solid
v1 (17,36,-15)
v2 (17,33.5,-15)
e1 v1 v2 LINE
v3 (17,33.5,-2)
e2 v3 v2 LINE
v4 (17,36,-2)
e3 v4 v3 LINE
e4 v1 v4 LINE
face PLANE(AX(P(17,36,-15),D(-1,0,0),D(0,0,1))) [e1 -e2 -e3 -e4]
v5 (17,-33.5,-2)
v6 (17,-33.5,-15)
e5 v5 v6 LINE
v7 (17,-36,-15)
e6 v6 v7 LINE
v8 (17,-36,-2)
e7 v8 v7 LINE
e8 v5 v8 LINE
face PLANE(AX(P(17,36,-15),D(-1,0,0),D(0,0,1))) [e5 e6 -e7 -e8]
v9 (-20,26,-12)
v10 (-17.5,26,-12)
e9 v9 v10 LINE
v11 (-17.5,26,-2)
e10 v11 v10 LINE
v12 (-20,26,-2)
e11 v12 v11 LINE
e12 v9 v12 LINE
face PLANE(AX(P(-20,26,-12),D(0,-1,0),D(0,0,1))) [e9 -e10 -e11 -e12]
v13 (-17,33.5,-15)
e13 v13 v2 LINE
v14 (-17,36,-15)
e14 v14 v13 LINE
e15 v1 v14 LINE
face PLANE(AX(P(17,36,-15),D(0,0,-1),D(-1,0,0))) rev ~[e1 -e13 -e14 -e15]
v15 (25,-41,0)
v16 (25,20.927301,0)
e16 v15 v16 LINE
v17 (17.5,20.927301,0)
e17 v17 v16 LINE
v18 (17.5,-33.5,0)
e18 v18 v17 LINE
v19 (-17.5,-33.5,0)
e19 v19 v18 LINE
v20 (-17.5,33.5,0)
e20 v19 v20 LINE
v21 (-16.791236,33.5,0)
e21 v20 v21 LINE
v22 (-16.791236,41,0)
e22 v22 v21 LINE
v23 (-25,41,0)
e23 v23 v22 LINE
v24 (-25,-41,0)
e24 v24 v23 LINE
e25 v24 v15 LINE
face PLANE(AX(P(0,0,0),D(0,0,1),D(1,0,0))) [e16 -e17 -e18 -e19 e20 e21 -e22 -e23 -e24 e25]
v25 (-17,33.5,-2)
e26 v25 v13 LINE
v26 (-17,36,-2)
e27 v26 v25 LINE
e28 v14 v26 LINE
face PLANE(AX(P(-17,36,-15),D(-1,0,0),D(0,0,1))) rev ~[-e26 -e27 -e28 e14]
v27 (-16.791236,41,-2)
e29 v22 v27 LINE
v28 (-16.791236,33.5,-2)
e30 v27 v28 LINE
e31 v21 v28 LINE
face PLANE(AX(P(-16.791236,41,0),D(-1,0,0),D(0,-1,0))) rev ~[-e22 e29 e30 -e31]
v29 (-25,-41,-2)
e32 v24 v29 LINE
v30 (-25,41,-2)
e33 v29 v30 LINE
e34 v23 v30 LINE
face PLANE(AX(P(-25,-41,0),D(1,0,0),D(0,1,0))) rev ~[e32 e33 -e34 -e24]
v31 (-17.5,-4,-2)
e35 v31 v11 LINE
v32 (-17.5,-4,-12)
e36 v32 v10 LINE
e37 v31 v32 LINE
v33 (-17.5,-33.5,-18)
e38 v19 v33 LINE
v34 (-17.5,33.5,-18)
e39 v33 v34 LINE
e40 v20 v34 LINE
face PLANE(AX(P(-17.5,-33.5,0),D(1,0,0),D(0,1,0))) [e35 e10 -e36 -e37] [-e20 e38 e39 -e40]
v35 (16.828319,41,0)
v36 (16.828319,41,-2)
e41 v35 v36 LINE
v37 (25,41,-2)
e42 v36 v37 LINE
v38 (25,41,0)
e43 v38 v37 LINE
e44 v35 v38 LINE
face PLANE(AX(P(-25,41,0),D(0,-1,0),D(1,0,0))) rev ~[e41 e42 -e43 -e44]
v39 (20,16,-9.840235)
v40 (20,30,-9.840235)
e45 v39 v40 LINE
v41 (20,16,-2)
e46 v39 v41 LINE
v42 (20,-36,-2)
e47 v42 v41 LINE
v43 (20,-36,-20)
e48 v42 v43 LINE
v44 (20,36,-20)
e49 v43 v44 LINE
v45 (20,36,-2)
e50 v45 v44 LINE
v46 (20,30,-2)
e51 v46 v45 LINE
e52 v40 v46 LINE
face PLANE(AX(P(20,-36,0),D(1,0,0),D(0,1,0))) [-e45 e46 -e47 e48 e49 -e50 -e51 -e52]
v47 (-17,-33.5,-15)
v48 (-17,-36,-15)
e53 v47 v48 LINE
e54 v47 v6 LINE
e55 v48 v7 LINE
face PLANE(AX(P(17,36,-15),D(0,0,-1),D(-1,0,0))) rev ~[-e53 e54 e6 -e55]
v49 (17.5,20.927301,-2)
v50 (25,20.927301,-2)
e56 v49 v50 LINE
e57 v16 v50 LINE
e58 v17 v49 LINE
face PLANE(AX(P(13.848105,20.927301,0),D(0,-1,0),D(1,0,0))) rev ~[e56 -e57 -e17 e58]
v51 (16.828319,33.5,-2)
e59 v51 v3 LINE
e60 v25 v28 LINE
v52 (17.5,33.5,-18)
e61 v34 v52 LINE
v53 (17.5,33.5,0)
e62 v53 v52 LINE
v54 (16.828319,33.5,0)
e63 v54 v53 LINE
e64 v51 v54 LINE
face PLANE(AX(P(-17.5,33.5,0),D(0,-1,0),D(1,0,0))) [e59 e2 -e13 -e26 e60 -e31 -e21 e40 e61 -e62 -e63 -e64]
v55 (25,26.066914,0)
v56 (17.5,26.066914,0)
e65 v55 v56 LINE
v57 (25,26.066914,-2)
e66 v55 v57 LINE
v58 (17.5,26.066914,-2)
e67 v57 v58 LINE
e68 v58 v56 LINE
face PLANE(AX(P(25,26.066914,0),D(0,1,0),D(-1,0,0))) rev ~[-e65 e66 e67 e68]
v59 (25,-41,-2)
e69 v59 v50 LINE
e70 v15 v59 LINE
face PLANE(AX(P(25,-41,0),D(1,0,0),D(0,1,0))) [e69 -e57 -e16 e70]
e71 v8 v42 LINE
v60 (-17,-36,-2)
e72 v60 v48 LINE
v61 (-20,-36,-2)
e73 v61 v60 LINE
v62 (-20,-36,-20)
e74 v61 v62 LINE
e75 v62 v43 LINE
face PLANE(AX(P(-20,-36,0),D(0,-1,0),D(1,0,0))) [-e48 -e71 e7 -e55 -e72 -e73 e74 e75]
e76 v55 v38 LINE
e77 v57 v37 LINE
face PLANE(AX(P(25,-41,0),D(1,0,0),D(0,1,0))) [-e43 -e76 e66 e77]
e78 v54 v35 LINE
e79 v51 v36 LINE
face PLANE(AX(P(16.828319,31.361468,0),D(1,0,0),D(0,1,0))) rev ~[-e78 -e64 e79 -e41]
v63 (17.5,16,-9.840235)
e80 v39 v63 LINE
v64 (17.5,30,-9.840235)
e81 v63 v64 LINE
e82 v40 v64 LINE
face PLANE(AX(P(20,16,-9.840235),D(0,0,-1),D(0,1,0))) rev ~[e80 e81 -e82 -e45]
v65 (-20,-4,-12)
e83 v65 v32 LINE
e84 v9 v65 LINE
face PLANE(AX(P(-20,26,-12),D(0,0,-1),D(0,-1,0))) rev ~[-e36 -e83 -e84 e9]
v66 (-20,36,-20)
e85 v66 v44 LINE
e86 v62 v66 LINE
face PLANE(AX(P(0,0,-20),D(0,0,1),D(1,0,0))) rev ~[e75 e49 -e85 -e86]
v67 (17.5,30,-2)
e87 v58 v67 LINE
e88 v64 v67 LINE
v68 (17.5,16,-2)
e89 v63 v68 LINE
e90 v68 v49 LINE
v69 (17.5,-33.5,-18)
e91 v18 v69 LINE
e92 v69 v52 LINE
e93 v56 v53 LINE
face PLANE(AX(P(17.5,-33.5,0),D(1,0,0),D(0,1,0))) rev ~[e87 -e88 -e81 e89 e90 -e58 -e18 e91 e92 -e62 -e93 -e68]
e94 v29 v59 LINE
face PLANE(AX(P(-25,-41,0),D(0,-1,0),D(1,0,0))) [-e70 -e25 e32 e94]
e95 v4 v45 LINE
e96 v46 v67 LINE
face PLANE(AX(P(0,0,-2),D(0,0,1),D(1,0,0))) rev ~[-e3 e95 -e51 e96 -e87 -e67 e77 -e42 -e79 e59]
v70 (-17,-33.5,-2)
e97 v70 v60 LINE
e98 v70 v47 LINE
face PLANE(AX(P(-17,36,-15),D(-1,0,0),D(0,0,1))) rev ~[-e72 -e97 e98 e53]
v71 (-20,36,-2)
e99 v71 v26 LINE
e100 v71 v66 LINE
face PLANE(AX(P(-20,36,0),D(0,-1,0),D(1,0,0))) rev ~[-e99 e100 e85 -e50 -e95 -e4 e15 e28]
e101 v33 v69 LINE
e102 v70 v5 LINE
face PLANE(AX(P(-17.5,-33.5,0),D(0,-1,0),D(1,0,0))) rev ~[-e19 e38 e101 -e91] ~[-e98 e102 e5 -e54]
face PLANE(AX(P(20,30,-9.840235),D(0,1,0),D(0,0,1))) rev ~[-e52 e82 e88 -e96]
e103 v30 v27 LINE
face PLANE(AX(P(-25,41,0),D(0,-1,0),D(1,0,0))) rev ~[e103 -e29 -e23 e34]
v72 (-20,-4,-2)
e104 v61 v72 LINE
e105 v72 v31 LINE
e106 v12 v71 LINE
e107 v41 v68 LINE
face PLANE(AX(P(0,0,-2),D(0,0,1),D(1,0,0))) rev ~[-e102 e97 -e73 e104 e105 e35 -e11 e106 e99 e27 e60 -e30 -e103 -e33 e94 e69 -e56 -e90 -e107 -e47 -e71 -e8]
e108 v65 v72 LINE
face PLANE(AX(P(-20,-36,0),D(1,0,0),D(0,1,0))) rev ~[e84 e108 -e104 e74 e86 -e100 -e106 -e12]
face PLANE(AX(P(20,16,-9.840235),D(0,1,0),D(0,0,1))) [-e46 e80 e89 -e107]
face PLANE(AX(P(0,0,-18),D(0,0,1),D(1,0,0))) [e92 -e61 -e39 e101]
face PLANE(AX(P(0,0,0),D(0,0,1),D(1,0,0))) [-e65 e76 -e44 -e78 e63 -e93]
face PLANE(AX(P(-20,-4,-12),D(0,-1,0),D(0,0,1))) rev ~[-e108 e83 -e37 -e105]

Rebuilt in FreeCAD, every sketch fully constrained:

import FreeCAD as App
import Part
import Sketcher

doc = App.newDocument("Part")
params = doc.addObject("Spreadsheet::Sheet", "Params")
for row, (alias, value) in enumerate([
    ("sketch1_width", "40 mm"),
    ("sketch1_height", "72 mm"),
    ("pad1_length", "20 mm"),
    ("sketch2_width", "50 mm"),
    ("sketch2_width2", "40 mm"),
    ("sketch2_height", "82 mm"),
    ("sketch2_height2", "72 mm"),
    ("pad2_length", "2 mm"),
    ("sketch3_width", "35 mm"),
    ("sketch3_height", "67 mm"),
    ("pocket1_length", "18 mm"),
    ("sketch4_width", "14 mm"),
    ("pocket2_length", "5 mm"),
    ("sketch5_width", "30 mm"),
    ("sketch5_height", "10 mm"),
    ("pocket3_length", "5 mm"),
    ("sketch6_width", "34 mm"),
    ("sketch6_height", "13 mm"),
    ("pocket4_length", "126.25 mm"),
    ("pocket5_length", "5 mm"),
], start=1):
    params.set(f"A{row}", alias)
    params.set(f"B{row}", "=" + value)
    params.setAlias(f"B{row}", alias)

body = doc.addObject("PartDesign::Body", "Body")

sketch1 = body.newObject("Sketcher::SketchObject", "Sketch")
sketch1.AttachmentSupport = (doc.getObject("XY_Plane"), [""])
sketch1.MapMode = "FlatFace"
sketch1.addGeometry(Part.LineSegment(App.Vector(-20, 36, 0), App.Vector(-20, -36, 0)), False)
sketch1.addGeometry(Part.LineSegment(App.Vector(-20, -36, 0), App.Vector(20, -36, 0)), False)
sketch1.addGeometry(Part.LineSegment(App.Vector(20, -36, 0), App.Vector(20, 36, 0)), False)
sketch1.addGeometry(Part.LineSegment(App.Vector(20, 36, 0), App.Vector(-20, 36, 0)), False)
sketch1.addConstraint(Sketcher.Constraint("Coincident", 0, 2, 1, 1))
sketch1.addConstraint(Sketcher.Constraint("Coincident", 1, 2, 2, 1))
sketch1.addConstraint(Sketcher.Constraint("Coincident", 2, 2, 3, 1))
sketch1.addConstraint(Sketcher.Constraint("Coincident", 3, 2, 0, 1))
sketch1.addConstraint(Sketcher.Constraint("Vertical", 0))
sketch1.addConstraint(Sketcher.Constraint("Horizontal", 1))
sketch1.addConstraint(Sketcher.Constraint("Vertical", 2))
sketch1.addConstraint(Sketcher.Constraint("Horizontal", 3))
sketch1.addConstraint(Sketcher.Constraint("Symmetric", 0, 2, 2, 2, -1, 1))
sketch1.addConstraint(Sketcher.Constraint("DistanceX", 1, 1, 1, 2, 40.0))
sketch1.addConstraint(Sketcher.Constraint("DistanceY", 0, 2, 0, 1, 72.0))
sketch1.setExpression("Constraints[9]", "Params.sketch1_width")
sketch1.setExpression("Constraints[10]", "Params.sketch1_height")
pad1 = body.newObject("PartDesign::Pad", "Pad")
pad1.Profile = sketch1
pad1.setExpression("Length", "Params.pad1_length")
pad1.Reversed = True

sketch2 = body.newObject("Sketcher::SketchObject", "Sketch001")
sketch2.AttachmentSupport = (doc.getObject("XY_Plane"), [""])
sketch2.MapMode = "FlatFace"
sketch2.addGeometry(Part.LineSegment(App.Vector(-25, 41, 0), App.Vector(-25, -41, 0)), False)
sketch2.addGeometry(Part.LineSegment(App.Vector(-25, -41, 0), App.Vector(25, -41, 0)), False)
sketch2.addGeometry(Part.LineSegment(App.Vector(25, -41, 0), App.Vector(25, 41, 0)), False)
sketch2.addGeometry(Part.LineSegment(App.Vector(25, 41, 0), App.Vector(-25, 41, 0)), False)
sketch2.addGeometry(Part.LineSegment(App.Vector(20, -36, 0), App.Vector(-20, -36, 0)), False)
sketch2.addGeometry(Part.LineSegment(App.Vector(-20, -36, 0), App.Vector(-20, 36, 0)), False)
sketch2.addGeometry(Part.LineSegment(App.Vector(-20, 36, 0), App.Vector(20, 36, 0)), False)
sketch2.addGeometry(Part.LineSegment(App.Vector(20, 36, 0), App.Vector(20, -36, 0)), False)
sketch2.addConstraint(Sketcher.Constraint("Coincident", 0, 2, 1, 1))
sketch2.addConstraint(Sketcher.Constraint("Coincident", 1, 2, 2, 1))
sketch2.addConstraint(Sketcher.Constraint("Coincident", 2, 2, 3, 1))
sketch2.addConstraint(Sketcher.Constraint("Coincident", 3, 2, 0, 1))
sketch2.addConstraint(Sketcher.Constraint("Coincident", 4, 2, 5, 1))
sketch2.addConstraint(Sketcher.Constraint("Coincident", 5, 2, 6, 1))
sketch2.addConstraint(Sketcher.Constraint("Coincident", 6, 2, 7, 1))
sketch2.addConstraint(Sketcher.Constraint("Coincident", 7, 2, 4, 1))
sketch2.addConstraint(Sketcher.Constraint("Vertical", 0))
sketch2.addConstraint(Sketcher.Constraint("Horizontal", 1))
sketch2.addConstraint(Sketcher.Constraint("Vertical", 2))
sketch2.addConstraint(Sketcher.Constraint("Horizontal", 3))
sketch2.addConstraint(Sketcher.Constraint("Horizontal", 4))
sketch2.addConstraint(Sketcher.Constraint("Vertical", 5))
sketch2.addConstraint(Sketcher.Constraint("Horizontal", 6))
sketch2.addConstraint(Sketcher.Constraint("Vertical", 7))
sketch2.addConstraint(Sketcher.Constraint("Symmetric", 0, 2, 2, 2, -1, 1))
sketch2.addConstraint(Sketcher.Constraint("Symmetric", 4, 2, 6, 2, -1, 1))
sketch2.addConstraint(Sketcher.Constraint("DistanceX", 1, 1, 1, 2, 50.0))
sketch2.addConstraint(Sketcher.Constraint("DistanceX", 4, 2, 4, 1, 40.0))
sketch2.addConstraint(Sketcher.Constraint("DistanceY", 0, 2, 0, 1, 82.0))
sketch2.addConstraint(Sketcher.Constraint("DistanceY", 5, 1, 5, 2, 72.0))
sketch2.setExpression("Constraints[18]", "Params.sketch2_width")
sketch2.setExpression("Constraints[19]", "Params.sketch2_width2")
sketch2.setExpression("Constraints[20]", "Params.sketch2_height")
sketch2.setExpression("Constraints[21]", "Params.sketch2_height2")
pad2 = body.newObject("PartDesign::Pad", "Pad001")
pad2.Profile = sketch2
pad2.setExpression("Length", "Params.pad2_length")
pad2.Reversed = True

sketch3 = body.newObject("Sketcher::SketchObject", "Sketch002")
sketch3.AttachmentSupport = (doc.getObject("XY_Plane"), [""])
sketch3.MapMode = "FlatFace"
sketch3.addGeometry(Part.LineSegment(App.Vector(-18, 34, 0), App.Vector(-18, -34, 0)), False)
sketch3.addGeometry(Part.LineSegment(App.Vector(-18, -34, 0), App.Vector(18, -34, 0)), False)
sketch3.addGeometry(Part.LineSegment(App.Vector(18, -34, 0), App.Vector(18, 34, 0)), False)
sketch3.addGeometry(Part.LineSegment(App.Vector(18, 34, 0), App.Vector(-18, 34, 0)), False)
sketch3.addConstraint(Sketcher.Constraint("Coincident", 0, 2, 1, 1))
sketch3.addConstraint(Sketcher.Constraint("Coincident", 1, 2, 2, 1))
sketch3.addConstraint(Sketcher.Constraint("Coincident", 2, 2, 3, 1))
sketch3.addConstraint(Sketcher.Constraint("Coincident", 3, 2, 0, 1))
sketch3.addConstraint(Sketcher.Constraint("Vertical", 0))
sketch3.addConstraint(Sketcher.Constraint("Horizontal", 1))
sketch3.addConstraint(Sketcher.Constraint("Vertical", 2))
sketch3.addConstraint(Sketcher.Constraint("Horizontal", 3))
sketch3.addConstraint(Sketcher.Constraint("Symmetric", 0, 2, 2, 2, -1, 1))
sketch3.addConstraint(Sketcher.Constraint("DistanceX", 1, 1, 1, 2, 35.0))
sketch3.addConstraint(Sketcher.Constraint("DistanceY", 0, 2, 0, 1, 67.0))
sketch3.setExpression("Constraints[9]", "Params.sketch3_width")
sketch3.setExpression("Constraints[10]", "Params.sketch3_height")
pocket1 = body.newObject("PartDesign::Pocket", "Pocket")
pocket1.Profile = sketch3
pocket1.setExpression("Length", "Params.pocket1_length")

sketch4 = body.newObject("Sketcher::SketchObject", "Sketch003")
sketch4.AttachmentSupport = (doc.getObject("YZ_Plane"), [""])
sketch4.MapMode = "FlatFace"
sketch4.AttachmentOffset = App.Placement(App.Vector(0, 0, 20), App.Rotation())
sketch4.addGeometry(Part.LineSegment(App.Vector(16, -2, 0), App.Vector(16, -10, 0)), False)
sketch4.addGeometry(Part.LineSegment(App.Vector(16, -10, 0), App.Vector(30, -10, 0)), False)
sketch4.addGeometry(Part.LineSegment(App.Vector(30, -10, 0), App.Vector(30, -2, 0)), False)
sketch4.addGeometry(Part.LineSegment(App.Vector(30, -2, 0), App.Vector(16, -2, 0)), False)
sketch4.addConstraint(Sketcher.Constraint("Coincident", 0, 2, 1, 1))
sketch4.addConstraint(Sketcher.Constraint("Coincident", 1, 2, 2, 1))
sketch4.addConstraint(Sketcher.Constraint("Coincident", 2, 2, 3, 1))
sketch4.addConstraint(Sketcher.Constraint("Coincident", 3, 2, 0, 1))
sketch4.addConstraint(Sketcher.Constraint("Vertical", 0))
sketch4.addConstraint(Sketcher.Constraint("Horizontal", 1))
sketch4.addConstraint(Sketcher.Constraint("Vertical", 2))
sketch4.addConstraint(Sketcher.Constraint("Horizontal", 3))
sketch4.addConstraint(Sketcher.Constraint("DistanceX", 1, 1, 1, 2, 14.0))
sketch4.addConstraint(Sketcher.Constraint("DistanceX", -1, 1, 0, 2, 16.0))
sketch4.addConstraint(Sketcher.Constraint("DistanceY", 2, 2, -1, 1, 2.0))
sketch4.addConstraint(Sketcher.Constraint("DistanceY", 0, 2, 0, 1, 7.840235))
sketch4.setExpression("Constraints[8]", "Params.sketch4_width")
pocket2 = body.newObject("PartDesign::Pocket", "Pocket001")
pocket2.Profile = sketch4
pocket2.setExpression("Length", "Params.pocket2_length")

sketch5 = body.newObject("Sketcher::SketchObject", "Sketch004")
sketch5.AttachmentSupport = (doc.getObject("YZ_Plane"), [""])
sketch5.MapMode = "FlatFace"
sketch5.AttachmentOffset = App.Placement(App.Vector(0, 0, -20), App.Rotation())
sketch5.addGeometry(Part.LineSegment(App.Vector(26, -2, 0), App.Vector(26, -12, 0)), False)
sketch5.addGeometry(Part.LineSegment(App.Vector(26, -12, 0), App.Vector(-4, -12, 0)), False)
sketch5.addGeometry(Part.LineSegment(App.Vector(-4, -12, 0), App.Vector(-4, -2, 0)), False)
sketch5.addGeometry(Part.LineSegment(App.Vector(-4, -2, 0), App.Vector(26, -2, 0)), False)
sketch5.addConstraint(Sketcher.Constraint("Coincident", 0, 2, 1, 1))
sketch5.addConstraint(Sketcher.Constraint("Coincident", 1, 2, 2, 1))
sketch5.addConstraint(Sketcher.Constraint("Coincident", 2, 2, 3, 1))
sketch5.addConstraint(Sketcher.Constraint("Coincident", 3, 2, 0, 1))
sketch5.addConstraint(Sketcher.Constraint("Vertical", 0))
sketch5.addConstraint(Sketcher.Constraint("Horizontal", 1))
sketch5.addConstraint(Sketcher.Constraint("Vertical", 2))
sketch5.addConstraint(Sketcher.Constraint("Horizontal", 3))
sketch5.addConstraint(Sketcher.Constraint("DistanceX", 1, 2, 1, 1, 30.0))
sketch5.addConstraint(Sketcher.Constraint("DistanceY", 0, 2, 0, 1, 10.0))
sketch5.addConstraint(Sketcher.Constraint("DistanceX", -1, 1, 0, 2, 26.0))
sketch5.addConstraint(Sketcher.Constraint("DistanceY", 0, 2, -1, 1, 12.0))
sketch5.setExpression("Constraints[8]", "Params.sketch5_width")
sketch5.setExpression("Constraints[9]", "Params.sketch5_height")
pocket3 = body.newObject("PartDesign::Pocket", "Pocket002")
pocket3.Profile = sketch5
pocket3.setExpression("Length", "Params.pocket3_length")
pocket3.Reversed = True

sketch6 = body.newObject("Sketcher::SketchObject", "Sketch005")
sketch6.AttachmentSupport = (doc.getObject("XZ_Plane"), [""])
sketch6.MapMode = "FlatFace"
sketch6.AttachmentOffset = App.Placement(App.Vector(0, 0, -36), App.Rotation())
sketch6.addGeometry(Part.LineSegment(App.Vector(17, -2, 0), App.Vector(17, -15, 0)), False)
sketch6.addGeometry(Part.LineSegment(App.Vector(17, -15, 0), App.Vector(-17, -15, 0)), False)
sketch6.addGeometry(Part.LineSegment(App.Vector(-17, -15, 0), App.Vector(-17, -2, 0)), False)
sketch6.addGeometry(Part.LineSegment(App.Vector(-17, -2, 0), App.Vector(17, -2, 0)), False)
sketch6.addConstraint(Sketcher.Constraint("Coincident", 0, 2, 1, 1))
sketch6.addConstraint(Sketcher.Constraint("Coincident", 1, 2, 2, 1))
sketch6.addConstraint(Sketcher.Constraint("Coincident", 2, 2, 3, 1))
sketch6.addConstraint(Sketcher.Constraint("Coincident", 3, 2, 0, 1))
sketch6.addConstraint(Sketcher.Constraint("Vertical", 0))
sketch6.addConstraint(Sketcher.Constraint("Horizontal", 1))
sketch6.addConstraint(Sketcher.Constraint("Vertical", 2))
sketch6.addConstraint(Sketcher.Constraint("Horizontal", 3))
sketch6.addConstraint(Sketcher.Constraint("DistanceX", 1, 2, 1, 1, 34.0))
sketch6.addConstraint(Sketcher.Constraint("DistanceY", 0, 2, 0, 1, 13.0))
sketch6.addConstraint(Sketcher.Constraint("DistanceX", -1, 1, 0, 2, 17.0))
sketch6.addConstraint(Sketcher.Constraint("DistanceY", 0, 2, -1, 1, 15.0))
sketch6.setExpression("Constraints[8]", "Params.sketch6_width")
sketch6.setExpression("Constraints[9]", "Params.sketch6_height")
pocket4 = body.newObject("PartDesign::Pocket", "Pocket003")
pocket4.Profile = sketch6
pocket4.setExpression("Length", "Params.pocket4_length")
pocket4.Reversed = True

sketch7 = body.newObject("Sketcher::SketchObject", "Sketch006")
sketch7.AttachmentSupport = (doc.getObject("XY_Plane"), [""])
sketch7.MapMode = "FlatFace"
sketch7.addGeometry(Part.LineSegment(App.Vector(25, 21, 0), App.Vector(25, 26, 0)), False)
sketch7.addGeometry(Part.LineSegment(App.Vector(25, 26, 0), App.Vector(14, 26, 0)), False)
sketch7.addGeometry(Part.LineSegment(App.Vector(14, 26, 0), App.Vector(14, 21, 0)), False)
sketch7.addGeometry(Part.LineSegment(App.Vector(14, 21, 0), App.Vector(25, 21, 0)), False)
sketch7.addGeometry(Part.LineSegment(App.Vector(-17, 41, 0), App.Vector(-17, 31, 0)), False)
sketch7.addGeometry(Part.LineSegment(App.Vector(-17, 31, 0), App.Vector(17, 31, 0)), False)
sketch7.addGeometry(Part.LineSegment(App.Vector(17, 31, 0), App.Vector(17, 41, 0)), False)
sketch7.addGeometry(Part.LineSegment(App.Vector(17, 41, 0), App.Vector(-17, 41, 0)), False)
sketch7.addConstraint(Sketcher.Constraint("Coincident", 0, 2, 1, 1))
sketch7.addConstraint(Sketcher.Constraint("Coincident", 1, 2, 2, 1))
sketch7.addConstraint(Sketcher.Constraint("Coincident", 2, 2, 3, 1))
sketch7.addConstraint(Sketcher.Constraint("Coincident", 3, 2, 0, 1))
sketch7.addConstraint(Sketcher.Constraint("Coincident", 4, 2, 5, 1))
sketch7.addConstraint(Sketcher.Constraint("Coincident", 5, 2, 6, 1))
sketch7.addConstraint(Sketcher.Constraint("Coincident", 6, 2, 7, 1))
sketch7.addConstraint(Sketcher.Constraint("Coincident", 7, 2, 4, 1))
sketch7.addConstraint(Sketcher.Constraint("Vertical", 0))
sketch7.addConstraint(Sketcher.Constraint("Horizontal", 1))
sketch7.addConstraint(Sketcher.Constraint("Vertical", 2))
sketch7.addConstraint(Sketcher.Constraint("Horizontal", 3))
sketch7.addConstraint(Sketcher.Constraint("Vertical", 4))
sketch7.addConstraint(Sketcher.Constraint("Horizontal", 5))
sketch7.addConstraint(Sketcher.Constraint("Vertical", 6))
sketch7.addConstraint(Sketcher.Constraint("Horizontal", 7))
sketch7.addConstraint(Sketcher.Constraint("DistanceX", -1, 1, 0, 2, 25.0))
sketch7.addConstraint(Sketcher.Constraint("DistanceY", -1, 1, 6, 2, 41.0))
sketch7.addConstraint(Sketcher.Constraint("DistanceY", 4, 2, 4, 1, 9.638532))
sketch7.addConstraint(Sketcher.Constraint("DistanceY", -1, 1, 2, 2, 20.927301))
sketch7.addConstraint(Sketcher.Constraint("DistanceX", 1, 2, 1, 1, 11.151895))
sketch7.addConstraint(Sketcher.Constraint("DistanceX", 5, 1, 5, 2, 33.619555))
sketch7.addConstraint(Sketcher.Constraint("DistanceY", 0, 1, 0, 2, 5.139614))
sketch7.addConstraint(Sketcher.Constraint("DistanceX", -1, 1, 5, 2, 16.828319))
pocket5 = body.newObject("PartDesign::Pocket", "Pocket004")
pocket5.Profile = sketch7
pocket5.setExpression("Length", "Params.pocket5_length")

doc.recompute()
